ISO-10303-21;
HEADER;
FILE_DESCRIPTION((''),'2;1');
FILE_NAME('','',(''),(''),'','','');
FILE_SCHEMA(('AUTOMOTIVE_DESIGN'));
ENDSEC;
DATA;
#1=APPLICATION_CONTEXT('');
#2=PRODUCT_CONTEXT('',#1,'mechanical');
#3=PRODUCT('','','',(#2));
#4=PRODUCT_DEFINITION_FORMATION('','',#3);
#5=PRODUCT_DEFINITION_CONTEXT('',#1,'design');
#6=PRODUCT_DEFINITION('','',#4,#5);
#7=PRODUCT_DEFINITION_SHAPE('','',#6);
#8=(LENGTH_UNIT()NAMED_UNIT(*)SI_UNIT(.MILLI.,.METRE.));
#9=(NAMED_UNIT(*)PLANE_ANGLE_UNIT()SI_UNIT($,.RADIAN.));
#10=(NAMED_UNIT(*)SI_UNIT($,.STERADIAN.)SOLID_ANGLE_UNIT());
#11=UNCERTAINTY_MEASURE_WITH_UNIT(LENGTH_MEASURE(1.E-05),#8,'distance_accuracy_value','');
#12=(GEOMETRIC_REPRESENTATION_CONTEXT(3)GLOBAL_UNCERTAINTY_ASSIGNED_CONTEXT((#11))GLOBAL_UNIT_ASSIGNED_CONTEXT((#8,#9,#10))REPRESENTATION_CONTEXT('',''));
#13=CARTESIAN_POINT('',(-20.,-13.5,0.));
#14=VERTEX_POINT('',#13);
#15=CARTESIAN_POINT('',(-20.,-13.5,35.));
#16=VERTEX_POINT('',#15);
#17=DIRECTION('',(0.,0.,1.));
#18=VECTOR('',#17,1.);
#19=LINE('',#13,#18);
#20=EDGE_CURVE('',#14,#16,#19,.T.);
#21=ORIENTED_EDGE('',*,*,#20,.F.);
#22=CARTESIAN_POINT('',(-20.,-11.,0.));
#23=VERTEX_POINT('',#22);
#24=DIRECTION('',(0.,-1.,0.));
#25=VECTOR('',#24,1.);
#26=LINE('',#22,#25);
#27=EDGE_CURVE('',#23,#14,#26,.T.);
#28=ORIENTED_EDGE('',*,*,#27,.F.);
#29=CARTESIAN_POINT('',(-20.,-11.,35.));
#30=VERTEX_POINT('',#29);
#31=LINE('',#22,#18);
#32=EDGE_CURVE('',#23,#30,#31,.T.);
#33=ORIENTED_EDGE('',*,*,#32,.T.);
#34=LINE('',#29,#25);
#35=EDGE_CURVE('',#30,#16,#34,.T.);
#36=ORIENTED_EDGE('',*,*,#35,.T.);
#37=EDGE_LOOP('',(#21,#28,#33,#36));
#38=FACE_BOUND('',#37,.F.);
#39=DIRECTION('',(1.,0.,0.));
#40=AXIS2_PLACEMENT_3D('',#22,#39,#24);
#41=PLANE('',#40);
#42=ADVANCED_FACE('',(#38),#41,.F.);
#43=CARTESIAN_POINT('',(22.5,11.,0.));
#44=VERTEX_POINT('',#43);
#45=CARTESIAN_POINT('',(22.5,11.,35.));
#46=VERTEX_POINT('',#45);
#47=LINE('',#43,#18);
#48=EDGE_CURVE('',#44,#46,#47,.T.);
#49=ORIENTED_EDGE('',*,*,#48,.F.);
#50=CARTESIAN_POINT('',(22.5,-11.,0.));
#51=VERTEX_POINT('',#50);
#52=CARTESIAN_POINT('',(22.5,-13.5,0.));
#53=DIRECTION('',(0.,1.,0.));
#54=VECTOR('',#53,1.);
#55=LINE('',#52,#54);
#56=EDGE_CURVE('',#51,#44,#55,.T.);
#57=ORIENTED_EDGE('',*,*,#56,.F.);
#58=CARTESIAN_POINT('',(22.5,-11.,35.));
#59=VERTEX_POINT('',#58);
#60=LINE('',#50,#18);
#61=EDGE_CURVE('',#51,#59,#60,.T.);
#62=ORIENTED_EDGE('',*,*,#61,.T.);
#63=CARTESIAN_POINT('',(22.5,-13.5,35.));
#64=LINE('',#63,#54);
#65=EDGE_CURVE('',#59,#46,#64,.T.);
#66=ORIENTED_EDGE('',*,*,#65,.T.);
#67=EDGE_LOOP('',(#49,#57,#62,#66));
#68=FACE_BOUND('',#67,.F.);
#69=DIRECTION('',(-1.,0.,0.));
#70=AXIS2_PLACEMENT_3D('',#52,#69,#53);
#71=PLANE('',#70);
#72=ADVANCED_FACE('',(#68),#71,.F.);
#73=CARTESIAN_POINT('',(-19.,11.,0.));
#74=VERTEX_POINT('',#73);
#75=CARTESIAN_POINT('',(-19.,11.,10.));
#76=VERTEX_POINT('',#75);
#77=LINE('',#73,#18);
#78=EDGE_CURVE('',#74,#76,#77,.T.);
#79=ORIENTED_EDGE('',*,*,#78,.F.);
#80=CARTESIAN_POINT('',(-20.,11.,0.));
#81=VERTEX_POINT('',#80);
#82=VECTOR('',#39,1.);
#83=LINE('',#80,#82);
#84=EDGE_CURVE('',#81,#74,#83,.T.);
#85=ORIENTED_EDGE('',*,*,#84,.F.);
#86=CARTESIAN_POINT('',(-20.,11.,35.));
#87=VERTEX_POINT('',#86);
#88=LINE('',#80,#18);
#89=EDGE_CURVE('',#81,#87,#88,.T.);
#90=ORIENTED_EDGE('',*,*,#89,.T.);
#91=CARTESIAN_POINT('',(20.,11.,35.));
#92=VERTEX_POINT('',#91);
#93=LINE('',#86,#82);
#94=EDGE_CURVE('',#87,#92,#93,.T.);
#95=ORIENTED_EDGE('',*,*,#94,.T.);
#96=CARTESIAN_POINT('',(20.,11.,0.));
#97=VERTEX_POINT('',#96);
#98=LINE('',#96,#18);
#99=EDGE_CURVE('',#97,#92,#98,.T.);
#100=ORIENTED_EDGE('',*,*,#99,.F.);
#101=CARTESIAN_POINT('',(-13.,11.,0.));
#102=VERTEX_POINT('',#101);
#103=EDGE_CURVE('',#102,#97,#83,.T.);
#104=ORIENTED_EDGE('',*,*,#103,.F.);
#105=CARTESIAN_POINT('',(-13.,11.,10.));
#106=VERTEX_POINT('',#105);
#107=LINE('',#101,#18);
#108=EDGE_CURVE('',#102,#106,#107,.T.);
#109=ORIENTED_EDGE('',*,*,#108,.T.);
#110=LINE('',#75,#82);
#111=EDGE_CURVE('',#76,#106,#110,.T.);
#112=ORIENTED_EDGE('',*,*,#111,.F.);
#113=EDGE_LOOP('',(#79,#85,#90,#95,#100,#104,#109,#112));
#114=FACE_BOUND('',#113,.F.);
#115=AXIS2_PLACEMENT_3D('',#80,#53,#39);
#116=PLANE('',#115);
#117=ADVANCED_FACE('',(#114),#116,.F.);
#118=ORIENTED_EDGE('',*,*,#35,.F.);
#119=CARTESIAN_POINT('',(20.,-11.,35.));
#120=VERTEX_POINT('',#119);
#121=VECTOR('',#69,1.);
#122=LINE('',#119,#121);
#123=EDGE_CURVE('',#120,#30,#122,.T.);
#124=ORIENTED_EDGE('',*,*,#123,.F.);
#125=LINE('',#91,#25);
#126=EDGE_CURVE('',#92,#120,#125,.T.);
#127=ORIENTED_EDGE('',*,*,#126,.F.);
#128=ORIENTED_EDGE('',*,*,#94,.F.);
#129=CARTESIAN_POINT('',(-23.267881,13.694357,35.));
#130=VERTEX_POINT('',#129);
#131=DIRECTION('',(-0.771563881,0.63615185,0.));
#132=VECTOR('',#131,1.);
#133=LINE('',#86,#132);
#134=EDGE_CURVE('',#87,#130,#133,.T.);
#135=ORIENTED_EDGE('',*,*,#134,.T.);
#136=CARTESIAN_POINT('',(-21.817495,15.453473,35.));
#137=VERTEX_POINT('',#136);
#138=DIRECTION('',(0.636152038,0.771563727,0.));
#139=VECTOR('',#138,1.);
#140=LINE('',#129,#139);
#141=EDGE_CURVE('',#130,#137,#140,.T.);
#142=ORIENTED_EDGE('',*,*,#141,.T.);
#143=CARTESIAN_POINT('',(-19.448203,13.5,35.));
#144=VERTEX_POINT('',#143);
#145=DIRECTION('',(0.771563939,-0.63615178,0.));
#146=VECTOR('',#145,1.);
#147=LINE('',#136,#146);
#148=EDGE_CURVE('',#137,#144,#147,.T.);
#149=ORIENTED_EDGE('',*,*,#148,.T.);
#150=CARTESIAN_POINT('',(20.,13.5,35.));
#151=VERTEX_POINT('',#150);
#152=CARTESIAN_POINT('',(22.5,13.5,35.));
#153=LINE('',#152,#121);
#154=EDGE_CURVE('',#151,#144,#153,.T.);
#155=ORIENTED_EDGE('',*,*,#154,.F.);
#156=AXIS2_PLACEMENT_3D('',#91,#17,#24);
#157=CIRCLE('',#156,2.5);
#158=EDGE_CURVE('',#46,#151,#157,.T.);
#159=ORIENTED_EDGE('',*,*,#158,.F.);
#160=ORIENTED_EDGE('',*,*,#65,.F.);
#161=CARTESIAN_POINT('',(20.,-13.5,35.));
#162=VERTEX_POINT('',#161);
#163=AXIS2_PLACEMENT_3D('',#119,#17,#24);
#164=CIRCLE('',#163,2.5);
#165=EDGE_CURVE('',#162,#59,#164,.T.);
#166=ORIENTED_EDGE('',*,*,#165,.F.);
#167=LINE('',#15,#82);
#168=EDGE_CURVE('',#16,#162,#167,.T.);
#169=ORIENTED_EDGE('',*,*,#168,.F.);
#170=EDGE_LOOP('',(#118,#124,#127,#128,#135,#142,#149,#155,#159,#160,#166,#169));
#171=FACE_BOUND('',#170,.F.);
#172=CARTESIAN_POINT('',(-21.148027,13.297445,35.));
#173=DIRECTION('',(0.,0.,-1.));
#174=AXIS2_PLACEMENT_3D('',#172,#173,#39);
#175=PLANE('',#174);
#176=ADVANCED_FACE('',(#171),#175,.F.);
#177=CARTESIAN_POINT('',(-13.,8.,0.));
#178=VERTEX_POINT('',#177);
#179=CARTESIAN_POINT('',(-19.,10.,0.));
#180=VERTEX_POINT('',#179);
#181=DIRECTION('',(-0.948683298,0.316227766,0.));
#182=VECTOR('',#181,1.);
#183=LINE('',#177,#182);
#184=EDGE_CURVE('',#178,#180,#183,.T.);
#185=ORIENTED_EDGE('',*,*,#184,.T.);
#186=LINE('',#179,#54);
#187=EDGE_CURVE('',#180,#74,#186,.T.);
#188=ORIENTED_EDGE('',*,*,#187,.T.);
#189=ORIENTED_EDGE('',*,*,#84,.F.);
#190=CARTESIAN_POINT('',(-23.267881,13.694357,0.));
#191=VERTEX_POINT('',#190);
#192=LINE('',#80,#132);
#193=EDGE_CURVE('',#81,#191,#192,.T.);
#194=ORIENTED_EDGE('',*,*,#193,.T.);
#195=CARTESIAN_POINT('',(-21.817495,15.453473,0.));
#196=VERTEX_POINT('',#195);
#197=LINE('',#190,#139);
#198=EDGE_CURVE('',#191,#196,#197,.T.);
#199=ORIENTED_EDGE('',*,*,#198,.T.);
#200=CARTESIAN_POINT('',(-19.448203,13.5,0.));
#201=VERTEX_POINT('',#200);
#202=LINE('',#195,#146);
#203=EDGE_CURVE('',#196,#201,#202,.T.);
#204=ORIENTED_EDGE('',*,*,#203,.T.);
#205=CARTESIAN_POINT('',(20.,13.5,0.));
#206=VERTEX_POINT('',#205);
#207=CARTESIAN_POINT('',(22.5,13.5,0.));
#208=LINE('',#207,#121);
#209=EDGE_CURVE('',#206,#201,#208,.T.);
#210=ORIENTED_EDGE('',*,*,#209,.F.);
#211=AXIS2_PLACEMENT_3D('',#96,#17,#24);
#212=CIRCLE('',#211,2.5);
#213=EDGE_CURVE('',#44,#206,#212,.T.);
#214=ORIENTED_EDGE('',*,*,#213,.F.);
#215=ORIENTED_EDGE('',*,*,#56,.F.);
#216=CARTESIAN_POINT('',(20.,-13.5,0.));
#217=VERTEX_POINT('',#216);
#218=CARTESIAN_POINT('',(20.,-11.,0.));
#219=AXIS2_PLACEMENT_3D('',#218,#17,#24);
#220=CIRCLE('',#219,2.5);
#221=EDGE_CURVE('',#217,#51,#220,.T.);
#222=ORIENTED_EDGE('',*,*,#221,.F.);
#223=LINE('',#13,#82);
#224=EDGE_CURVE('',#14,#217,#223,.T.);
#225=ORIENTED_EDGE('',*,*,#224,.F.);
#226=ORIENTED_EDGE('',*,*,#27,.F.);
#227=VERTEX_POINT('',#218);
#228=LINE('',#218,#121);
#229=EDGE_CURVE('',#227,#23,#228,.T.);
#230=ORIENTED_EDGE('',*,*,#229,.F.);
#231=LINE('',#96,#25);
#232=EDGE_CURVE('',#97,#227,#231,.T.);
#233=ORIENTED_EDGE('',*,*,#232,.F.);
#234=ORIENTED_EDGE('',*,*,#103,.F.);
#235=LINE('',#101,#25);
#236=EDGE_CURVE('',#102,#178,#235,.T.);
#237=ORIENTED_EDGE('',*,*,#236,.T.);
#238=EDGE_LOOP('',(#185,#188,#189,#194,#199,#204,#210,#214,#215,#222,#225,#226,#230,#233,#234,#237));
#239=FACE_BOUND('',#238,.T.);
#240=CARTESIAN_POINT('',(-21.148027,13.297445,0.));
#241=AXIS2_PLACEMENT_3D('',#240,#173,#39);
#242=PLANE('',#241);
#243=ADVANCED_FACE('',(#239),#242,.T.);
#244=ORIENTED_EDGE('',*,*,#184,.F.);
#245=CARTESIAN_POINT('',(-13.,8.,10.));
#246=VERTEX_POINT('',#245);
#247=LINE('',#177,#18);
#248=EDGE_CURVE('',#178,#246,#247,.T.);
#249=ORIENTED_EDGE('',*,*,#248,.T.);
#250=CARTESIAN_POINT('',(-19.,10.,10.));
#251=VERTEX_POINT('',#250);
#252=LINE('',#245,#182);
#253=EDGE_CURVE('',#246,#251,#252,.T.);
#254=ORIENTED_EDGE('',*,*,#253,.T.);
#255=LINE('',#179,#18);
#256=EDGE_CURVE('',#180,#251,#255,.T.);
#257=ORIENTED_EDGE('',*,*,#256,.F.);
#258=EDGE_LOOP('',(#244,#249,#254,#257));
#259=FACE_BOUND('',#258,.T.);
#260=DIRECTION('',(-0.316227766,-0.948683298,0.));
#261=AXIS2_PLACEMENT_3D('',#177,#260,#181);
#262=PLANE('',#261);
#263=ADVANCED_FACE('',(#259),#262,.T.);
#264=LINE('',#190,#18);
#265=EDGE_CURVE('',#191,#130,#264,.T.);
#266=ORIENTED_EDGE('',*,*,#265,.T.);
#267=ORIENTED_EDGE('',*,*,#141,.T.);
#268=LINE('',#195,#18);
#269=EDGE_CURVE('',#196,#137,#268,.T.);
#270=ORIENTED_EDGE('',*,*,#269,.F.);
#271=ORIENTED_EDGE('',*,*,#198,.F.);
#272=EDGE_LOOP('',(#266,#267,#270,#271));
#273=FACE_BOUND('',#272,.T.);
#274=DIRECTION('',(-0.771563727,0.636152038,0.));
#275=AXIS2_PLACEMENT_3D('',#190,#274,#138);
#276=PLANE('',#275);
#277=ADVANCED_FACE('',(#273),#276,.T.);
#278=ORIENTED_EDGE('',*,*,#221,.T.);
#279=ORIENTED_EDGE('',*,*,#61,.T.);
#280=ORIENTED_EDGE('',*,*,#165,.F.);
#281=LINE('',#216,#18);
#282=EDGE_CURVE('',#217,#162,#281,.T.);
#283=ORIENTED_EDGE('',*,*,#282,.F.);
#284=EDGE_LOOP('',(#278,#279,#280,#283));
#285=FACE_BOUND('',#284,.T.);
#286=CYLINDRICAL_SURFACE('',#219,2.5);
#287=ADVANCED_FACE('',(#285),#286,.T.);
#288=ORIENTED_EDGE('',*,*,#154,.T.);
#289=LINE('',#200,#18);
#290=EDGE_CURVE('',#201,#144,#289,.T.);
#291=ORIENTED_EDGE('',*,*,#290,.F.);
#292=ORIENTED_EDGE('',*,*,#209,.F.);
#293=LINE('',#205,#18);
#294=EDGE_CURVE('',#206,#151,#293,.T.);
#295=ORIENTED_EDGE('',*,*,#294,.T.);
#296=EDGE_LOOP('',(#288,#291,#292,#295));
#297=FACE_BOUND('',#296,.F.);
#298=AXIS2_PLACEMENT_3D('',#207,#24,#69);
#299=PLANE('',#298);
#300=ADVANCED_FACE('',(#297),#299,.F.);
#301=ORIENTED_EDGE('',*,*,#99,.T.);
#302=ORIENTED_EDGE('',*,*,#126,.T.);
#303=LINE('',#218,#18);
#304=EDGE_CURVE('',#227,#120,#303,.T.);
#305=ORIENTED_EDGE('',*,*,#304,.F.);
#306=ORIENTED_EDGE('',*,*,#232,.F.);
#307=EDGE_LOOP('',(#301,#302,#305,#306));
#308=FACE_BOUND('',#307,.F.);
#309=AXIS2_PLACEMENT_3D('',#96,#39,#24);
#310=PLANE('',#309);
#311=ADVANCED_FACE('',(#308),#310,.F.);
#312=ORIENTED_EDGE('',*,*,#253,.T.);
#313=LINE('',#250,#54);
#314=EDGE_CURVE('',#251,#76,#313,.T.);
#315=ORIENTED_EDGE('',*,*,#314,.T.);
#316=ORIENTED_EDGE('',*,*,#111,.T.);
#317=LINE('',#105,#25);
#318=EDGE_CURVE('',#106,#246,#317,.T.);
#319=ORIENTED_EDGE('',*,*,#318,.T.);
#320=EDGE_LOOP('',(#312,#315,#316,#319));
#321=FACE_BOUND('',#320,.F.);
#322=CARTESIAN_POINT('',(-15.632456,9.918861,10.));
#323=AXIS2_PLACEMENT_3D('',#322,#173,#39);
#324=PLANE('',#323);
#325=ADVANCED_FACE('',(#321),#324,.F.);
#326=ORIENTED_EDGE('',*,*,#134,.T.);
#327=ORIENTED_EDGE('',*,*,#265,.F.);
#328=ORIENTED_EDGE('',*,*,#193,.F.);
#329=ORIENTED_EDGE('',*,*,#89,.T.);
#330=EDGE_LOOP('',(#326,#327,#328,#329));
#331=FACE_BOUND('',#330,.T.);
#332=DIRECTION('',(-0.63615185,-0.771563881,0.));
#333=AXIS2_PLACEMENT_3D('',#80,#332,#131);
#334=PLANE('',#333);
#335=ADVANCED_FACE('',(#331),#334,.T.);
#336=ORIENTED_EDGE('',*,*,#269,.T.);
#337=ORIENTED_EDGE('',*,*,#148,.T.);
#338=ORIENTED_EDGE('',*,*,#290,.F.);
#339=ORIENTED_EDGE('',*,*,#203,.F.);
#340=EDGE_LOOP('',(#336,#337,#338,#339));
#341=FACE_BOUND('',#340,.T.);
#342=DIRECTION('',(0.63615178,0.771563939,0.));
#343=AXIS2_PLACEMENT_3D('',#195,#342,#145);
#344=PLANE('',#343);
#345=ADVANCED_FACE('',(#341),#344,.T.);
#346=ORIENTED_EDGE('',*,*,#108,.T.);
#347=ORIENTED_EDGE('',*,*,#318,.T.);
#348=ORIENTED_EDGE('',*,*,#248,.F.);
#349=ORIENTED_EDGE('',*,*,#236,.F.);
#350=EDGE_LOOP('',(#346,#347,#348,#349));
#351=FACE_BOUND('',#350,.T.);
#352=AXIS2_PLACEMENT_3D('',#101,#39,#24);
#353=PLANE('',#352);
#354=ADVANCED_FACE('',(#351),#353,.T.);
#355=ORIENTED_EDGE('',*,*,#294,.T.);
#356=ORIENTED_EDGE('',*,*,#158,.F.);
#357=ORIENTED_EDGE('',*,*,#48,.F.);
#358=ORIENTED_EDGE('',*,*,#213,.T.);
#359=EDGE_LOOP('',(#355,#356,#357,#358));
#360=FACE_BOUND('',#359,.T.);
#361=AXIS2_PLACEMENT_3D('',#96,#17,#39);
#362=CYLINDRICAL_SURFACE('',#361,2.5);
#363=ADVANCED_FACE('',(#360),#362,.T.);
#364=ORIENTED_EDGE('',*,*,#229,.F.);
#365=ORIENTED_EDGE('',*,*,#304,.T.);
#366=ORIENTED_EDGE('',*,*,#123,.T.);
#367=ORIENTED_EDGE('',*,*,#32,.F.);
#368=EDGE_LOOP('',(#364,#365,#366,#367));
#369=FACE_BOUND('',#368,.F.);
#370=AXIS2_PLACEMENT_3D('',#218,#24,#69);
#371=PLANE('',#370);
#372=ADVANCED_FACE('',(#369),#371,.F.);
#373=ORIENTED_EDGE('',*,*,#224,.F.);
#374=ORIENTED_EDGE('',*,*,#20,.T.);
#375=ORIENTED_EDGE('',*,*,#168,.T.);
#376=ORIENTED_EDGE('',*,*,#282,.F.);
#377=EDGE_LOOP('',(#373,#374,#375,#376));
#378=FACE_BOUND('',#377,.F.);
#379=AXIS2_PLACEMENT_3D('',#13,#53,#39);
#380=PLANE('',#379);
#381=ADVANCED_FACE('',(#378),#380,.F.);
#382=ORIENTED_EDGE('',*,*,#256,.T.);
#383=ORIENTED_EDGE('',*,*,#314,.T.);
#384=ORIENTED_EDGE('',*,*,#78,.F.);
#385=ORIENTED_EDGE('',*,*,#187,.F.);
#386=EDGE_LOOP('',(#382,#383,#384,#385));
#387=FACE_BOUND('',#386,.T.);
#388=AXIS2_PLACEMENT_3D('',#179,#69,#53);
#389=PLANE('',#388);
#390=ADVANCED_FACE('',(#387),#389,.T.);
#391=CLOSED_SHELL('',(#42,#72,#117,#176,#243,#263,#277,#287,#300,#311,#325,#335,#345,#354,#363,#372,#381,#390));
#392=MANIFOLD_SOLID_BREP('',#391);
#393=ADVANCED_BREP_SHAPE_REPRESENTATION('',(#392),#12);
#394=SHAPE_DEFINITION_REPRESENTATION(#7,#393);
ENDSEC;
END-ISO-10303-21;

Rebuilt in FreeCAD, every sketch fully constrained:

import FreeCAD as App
import Part
import Sketcher
Q = App.Units.Quantity


def edges_at(feature, points):
    """Names of the edges that pass closest to the given points."""
    edges = feature.Shape.Edges
    near = lambda p: min(range(len(edges)), key=lambda i: edges[i].distToShape(Part.Vertex(*p))[0])
    return sorted({f"Edge{near(p) + 1}" for p in points})


def add_polygon(sketch, points):
    """Adds a closed chain of lines whose ends are joined by coincident constraints."""
    first, n = sketch.GeometryCount, len(points)
    for a, b in zip(points, points[1:] + points[:1]):
        sketch.addGeometry(Part.LineSegment(App.Vector(*a, 0), App.Vector(*b, 0)), False)
    for i in range(n):
        sketch.addConstraint(Sketcher.Constraint("Coincident", first + i, 2, first + (i + 1) % n, 1))

doc = App.newDocument("Part")
params = doc.addObject("Spreadsheet::Sheet", "Params")
for row, (alias, value) in enumerate([
    ("sketch1_width", "40 mm"),
    ("sketch1_height", "22 mm"),
    ("sketch1_height2", "27 mm"),
    ("sketch1_width2", "42.5 mm"),
    ("pad1_length", "35 mm"),
    ("sketch2_width", "6 mm"),
    ("sketch2_height", "3 mm"),
    ("sketch2_height2", "1 mm"),
    ("pad2_length", "10 mm"),
    ("sketch3_height", "2.5 mm"),
    ("pad3_length", "35 mm"),
    ("fillet_radius", "2.5 mm"),
], start=1):
    params.set(f"A{row}", alias)
    params.set(f"B{row}", "=" + value)
    params.setAlias(f"B{row}", alias)

body = doc.addObject("PartDesign::Body", "Body")

# Sketch on XY plane
sketch1 = body.newObject("Sketcher::SketchObject", "Sketch")
sketch1.AttachmentSupport = (doc.getObject("XY_Plane"), [""])
sketch1.MapMode = "FlatFace"
add_polygon(sketch1, [(-20, 13.5), (-20, 11), (20, 11), (20, -11), (-20, -11), (-20, -13.5), (22.5, -13.5), (22.5, 13.5)])  # lines 0-7
sketch1.addConstraint(Sketcher.Constraint("Vertical", 0))
sketch1.addConstraint(Sketcher.Constraint("Horizontal", 1))
sketch1.addConstraint(Sketcher.Constraint("Vertical", 2))
sketch1.addConstraint(Sketcher.Constraint("Horizontal", 3))
sketch1.addConstraint(Sketcher.Constraint("Vertical", 4))
sketch1.addConstraint(Sketcher.Constraint("Horizontal", 5))
sketch1.addConstraint(Sketcher.Constraint("Vertical", 6))
sketch1.addConstraint(Sketcher.Constraint("Horizontal", 7))
sketch1.addConstraint(Sketcher.Constraint("Symmetric", 0, 2, 2, 2, -1, 1))
sketch1.addConstraint(Sketcher.Constraint("Symmetric", 4, 2, 7, 2, -1))
sketch1.addConstraint(Sketcher.Constraint("DistanceX", 1, 1, 1, 2, Q("40 mm")))
sketch1.addConstraint(Sketcher.Constraint("DistanceY", 2, 2, 2, 1, Q("22 mm")))
sketch1.addConstraint(Sketcher.Constraint("DistanceY", 6, 1, 6, 2, Q("27 mm")))
sketch1.addConstraint(Sketcher.Constraint("DistanceX", 5, 1, 5, 2, Q("42.5 mm")))
sketch1.setExpression("Constraints[18]", "Params.sketch1_width")
sketch1.setExpression("Constraints[19]", "Params.sketch1_height")
sketch1.setExpression("Constraints[20]", "Params.sketch1_height2")
sketch1.setExpression("Constraints[21]", "Params.sketch1_width2")
pad1 = body.newObject("PartDesign::Pad", "Pad")
pad1.Profile = sketch1
pad1.setExpression("Length", "Params.pad1_length")

# Sketch on XY plane
sketch2 = body.newObject("Sketcher::SketchObject", "Sketch001")
sketch2.AttachmentSupport = (doc.getObject("XY_Plane"), [""])
sketch2.MapMode = "FlatFace"
add_polygon(sketch2, [(-19, 11), (-13, 11), (-13, 8), (-19, 10)])  # lines 0-3
sketch2.addConstraint(Sketcher.Constraint("Horizontal", 0))
sketch2.addConstraint(Sketcher.Constraint("Vertical", 1))
sketch2.addConstraint(Sketcher.Constraint("Vertical", 3))
sketch2.addConstraint(Sketcher.Constraint("DistanceX", 0, 1, 0, 2, Q("6 mm")))
sketch2.addConstraint(Sketcher.Constraint("DistanceY", 1, 2, 1, 1, Q("3 mm")))
sketch2.addConstraint(Sketcher.Constraint("DistanceY", 3, 1, 3, 2, Q("1 mm")))
sketch2.addConstraint(Sketcher.Constraint("DistanceX", 0, 2, -1, 1, Q("13 mm")))
sketch2.addConstraint(Sketcher.Constraint("DistanceY", -1, 1, 0, 2, Q("11 mm")))
sketch2.setExpression("Constraints[7]", "Params.sketch2_width")
sketch2.setExpression("Constraints[8]", "Params.sketch2_height")
sketch2.setExpression("Constraints[9]", "Params.sketch2_height2")
pad2 = body.newObject("PartDesign::Pad", "Pad001")
pad2.Profile = sketch2
pad2.setExpression("Length", "Params.pad2_length")

# Sketch on XY plane
sketch3 = body.newObject("Sketcher::SketchObject", "Sketch002")
sketch3.AttachmentSupport = (doc.getObject("XY_Plane"), [""])
sketch3.MapMode = "FlatFace"
add_polygon(sketch3, [(-20, 13.5), (-20, 11), (-23.3, 13.7), (-21.8, 15.5), (-19.4, 13.5)])  # lines 0-4
sketch3.addConstraint(Sketcher.Constraint("Vertical", 0))
sketch3.addConstraint(Sketcher.Constraint("Horizontal", 4))
sketch3.addConstraint(Sketcher.Constraint("Perpendicular", 1, 2))
sketch3.addConstraint(Sketcher.Constraint("Perpendicular", 2, 3))
sketch3.addConstraint(Sketcher.Constraint("DistanceY", 0, 2, 0, 1, Q("2.5 mm")))
sketch3.addConstraint(Sketcher.Constraint("DistanceX", 0, 2, -1, 1, Q("20 mm")))
sketch3.addConstraint(Sketcher.Constraint("DistanceY", -1, 1, 0, 2, Q("11 mm")))
sketch3.addConstraint(Sketcher.Constraint("Distance", 1, Q("4.235399 mm")))
sketch3.addConstraint(Sketcher.Constraint("DistanceX", 4, 2, 4, 1, Q("0.551797 mm")))
sketch3.addConstraint(Sketcher.Constraint("DistanceX", 1, 2, -1, 1, Q("23.267881 mm")))
sketch3.setExpression("Constraints[9]", "Params.sketch3_height")
pad3 = body.newObject("PartDesign::Pad", "Pad002")
pad3.Profile = sketch3
pad3.setExpression("Length", "Params.pad3_length")
doc.recompute()

fillet = body.newObject("PartDesign::Fillet", "Fillet")
fillet.Base = (pad3, edges_at(pad3, [(22.5, 13.5, 17.5), (22.5, -13.5, 17.5)]))
fillet.setExpression("Radius", "Params.fillet_radius")

doc.recompute()
